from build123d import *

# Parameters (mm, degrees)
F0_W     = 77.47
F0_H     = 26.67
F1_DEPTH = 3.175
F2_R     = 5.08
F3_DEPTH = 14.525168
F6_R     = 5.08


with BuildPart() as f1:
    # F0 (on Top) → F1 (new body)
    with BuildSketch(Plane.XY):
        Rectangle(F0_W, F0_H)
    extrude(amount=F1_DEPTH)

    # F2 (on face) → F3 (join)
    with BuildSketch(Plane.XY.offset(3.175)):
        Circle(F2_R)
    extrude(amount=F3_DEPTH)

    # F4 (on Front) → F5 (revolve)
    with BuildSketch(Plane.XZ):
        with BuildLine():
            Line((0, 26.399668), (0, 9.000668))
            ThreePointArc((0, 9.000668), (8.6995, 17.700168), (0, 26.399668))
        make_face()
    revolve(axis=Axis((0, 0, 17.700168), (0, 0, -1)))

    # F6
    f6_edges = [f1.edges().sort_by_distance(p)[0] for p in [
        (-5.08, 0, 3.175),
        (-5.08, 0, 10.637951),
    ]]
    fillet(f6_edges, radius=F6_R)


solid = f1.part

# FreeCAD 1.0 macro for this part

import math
import FreeCAD as App
import Part
import Sketcher

V = App.Vector
Q = App.Units.Quantity


def edges_at(feature, points):
    """Names of the edges that pass closest to the given points."""
    edges = feature.Shape.Edges
    near = lambda p: min(range(len(edges)), key=lambda i: edges[i].distToShape(Part.Vertex(*p))[0])
    return sorted({f"Edge{near(p) + 1}" for p in points})


def add_polygon(sketch, points):
    """Adds a closed chain of lines whose ends are joined by coincident constraints."""
    first, n = sketch.GeometryCount, len(points)
    for a, b in zip(points, points[1:] + points[:1]):
        sketch.addGeometry(Part.LineSegment(App.Vector(*a, 0), App.Vector(*b, 0)), False)
    for i in range(n):
        sketch.addConstraint(Sketcher.Constraint("Coincident", first + i, 2, first + (i + 1) % n, 1))

doc = App.newDocument("Part")
body = doc.addObject("PartDesign::Body", "Body")

# Sketch on XY plane
sketch1 = body.newObject("Sketcher::SketchObject", "Sketch")
sketch1.AttachmentSupport = (doc.getObject("XY_Plane"), [""])
sketch1.MapMode = "FlatFace"
add_polygon(sketch1, [(-38.735, 13.335), (-38.735, -13.335), (38.735, -13.335), (38.735, 13.335)])  # lines 0-3
sketch1.addConstraint(Sketcher.Constraint("Vertical", 0))
sketch1.addConstraint(Sketcher.Constraint("Horizontal", 1))
sketch1.addConstraint(Sketcher.Constraint("Vertical", 2))
sketch1.addConstraint(Sketcher.Constraint("Horizontal", 3))
sketch1.addConstraint(Sketcher.Constraint("Symmetric", 0, 2, 2, 2, -1, 1))
sketch1.addConstraint(Sketcher.Constraint("DistanceX", 1, 1, 1, 2, Q("3.05 in")))
sketch1.addConstraint(Sketcher.Constraint("DistanceY", 0, 2, 0, 1, Q("1.05 in")))
pad1 = body.newObject("PartDesign::Pad", "Pad")
pad1.Profile = sketch1
pad1.Length = Q("0.125 in")

# Sketch on XY plane
sketch2 = body.newObject("Sketcher::SketchObject", "Sketch001")
sketch2.AttachmentSupport = (doc.getObject("XY_Plane"), [""])
sketch2.MapMode = "FlatFace"
sketch2.AttachmentOffset = App.Placement(V(0, 0, 0.125 * 25.4), App.Rotation())
sketch2.addGeometry(Part.Circle(V(0, 0, 0), V(0, 0, 1), 5.08), False)
sketch2.addConstraint(Sketcher.Constraint("Coincident", 0, 3, -1, 1))
sketch2.addConstraint(Sketcher.Constraint("Diameter", 0, Q("0.4 in")))
pad2 = body.newObject("PartDesign::Pad", "Pad001")
pad2.Profile = sketch2
pad2.Length = 14.525168

# Sketch on XZ plane
sketch3 = body.newObject("Sketcher::SketchObject", "Sketch002")
sketch3.AttachmentSupport = (doc.getObject("XZ_Plane"), [""])
sketch3.MapMode = "FlatFace"
sketch3.addGeometry(Part.LineSegment(V(0, 26.399668, 0), V(0, 9.000668, 0)), False)
sketch3.addGeometry(Part.ArcOfCircle(Part.Circle(V(0, 17.700168, 0), V(0, 0, 1), 8.6995), math.radians(-90), math.radians(90)), False)
sketch3.addConstraint(Sketcher.Constraint("Coincident", 0, 1, 1, 2))
sketch3.addConstraint(Sketcher.Constraint("Coincident", 1, 1, 0, 2))
sketch3.addConstraint(Sketcher.Constraint("Vertical", 0))
sketch3.addConstraint(Sketcher.Constraint("PointOnObject", 1, 3, -2))
sketch3.addConstraint(Sketcher.Constraint("PointOnObject", 0, 1, -2))
sketch3.addConstraint(Sketcher.Constraint("Radius", 1, Q("0.3425 in")))
sketch3.addConstraint(Sketcher.Constraint("DistanceY", -1, 1, 1, 3, 17.700168))
revolution = body.newObject("PartDesign::Revolution", "Revolution")
revolution.Profile = sketch3
revolution.ReferenceAxis = (sketch3, ["V_Axis"])
revolution.Angle = 360
doc.recompute()

fillet = body.newObject("PartDesign::Fillet", "Fillet")
fillet.Base = (revolution, edges_at(revolution, [(-5.08, 0, 3.175), (-5.08, 0, 10.638)]))
fillet.Radius = Q("0.2 in")

doc.recompute()
